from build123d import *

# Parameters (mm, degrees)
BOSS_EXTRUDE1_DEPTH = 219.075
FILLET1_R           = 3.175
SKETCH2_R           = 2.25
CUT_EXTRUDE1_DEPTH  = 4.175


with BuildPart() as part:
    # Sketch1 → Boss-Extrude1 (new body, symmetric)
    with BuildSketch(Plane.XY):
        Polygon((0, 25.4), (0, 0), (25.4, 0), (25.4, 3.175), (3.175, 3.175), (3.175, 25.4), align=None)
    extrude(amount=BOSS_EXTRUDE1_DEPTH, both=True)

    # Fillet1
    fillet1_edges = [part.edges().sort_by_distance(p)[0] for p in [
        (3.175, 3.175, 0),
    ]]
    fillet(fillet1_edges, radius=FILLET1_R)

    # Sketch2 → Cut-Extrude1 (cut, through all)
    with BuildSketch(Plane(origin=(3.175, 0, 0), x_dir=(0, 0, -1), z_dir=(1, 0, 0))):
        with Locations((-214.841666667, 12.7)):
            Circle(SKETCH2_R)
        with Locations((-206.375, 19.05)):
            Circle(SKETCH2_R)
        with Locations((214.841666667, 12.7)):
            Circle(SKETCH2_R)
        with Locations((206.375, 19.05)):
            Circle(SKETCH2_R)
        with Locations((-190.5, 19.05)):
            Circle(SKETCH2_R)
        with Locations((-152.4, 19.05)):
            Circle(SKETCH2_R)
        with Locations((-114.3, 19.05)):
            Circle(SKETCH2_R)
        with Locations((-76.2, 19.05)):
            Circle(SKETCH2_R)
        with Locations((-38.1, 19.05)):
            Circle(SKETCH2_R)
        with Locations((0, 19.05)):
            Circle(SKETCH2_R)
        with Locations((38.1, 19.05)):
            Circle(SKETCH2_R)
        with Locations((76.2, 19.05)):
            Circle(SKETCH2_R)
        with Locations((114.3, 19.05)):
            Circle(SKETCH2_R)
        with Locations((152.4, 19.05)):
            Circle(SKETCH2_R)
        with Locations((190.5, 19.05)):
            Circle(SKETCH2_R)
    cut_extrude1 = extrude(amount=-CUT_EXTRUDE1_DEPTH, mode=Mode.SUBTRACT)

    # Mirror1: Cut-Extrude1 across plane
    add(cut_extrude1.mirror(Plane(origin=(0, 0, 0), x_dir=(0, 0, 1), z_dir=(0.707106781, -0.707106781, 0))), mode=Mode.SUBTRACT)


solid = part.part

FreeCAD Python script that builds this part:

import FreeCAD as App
import Part
import Sketcher

V = App.Vector
Q = App.Units.Quantity


def edges_at(feature, points):
    """Names of the edges that pass closest to the given points."""
    edges = feature.Shape.Edges
    near = lambda p: min(range(len(edges)), key=lambda i: edges[i].distToShape(Part.Vertex(*p))[0])
    return sorted({f"Edge{near(p) + 1}" for p in points})

doc = App.newDocument("Part")
params = doc.addObject("Spreadsheet::Sheet", "Params")
for row, (alias, value) in enumerate([
    ("sketch1_width", "1 in"),
    ("sketch1_width2", "0.875 in"),
    ("pad1_length", "17.25 in"),
    ("fillet_radius", "0.125 in"),
], start=1):
    params.set(f"A{row}", alias)
    params.set(f"B{row}", "=" + value)
    params.setAlias(f"B{row}", alias)

body = doc.addObject("PartDesign::Body", "Body")

# Sketch on XY plane
sketch1 = body.newObject("Sketcher::SketchObject", "Sketch")
sketch1.AttachmentSupport = (doc.getObject("XY_Plane"), [""])
sketch1.MapMode = "FlatFace"
sketch1.addGeometry(Part.LineSegment(V(0, 25.4, 0), V(0, 0, 0)), False)
sketch1.addGeometry(Part.LineSegment(V(0, 0, 0), V(25.4, 0, 0)), False)
sketch1.addGeometry(Part.LineSegment(V(25.4, 0, 0), V(25.4, 3.2, 0)), False)
sketch1.addGeometry(Part.LineSegment(V(25.4, 3.2, 0), V(3.2, 3.2, 0)), False)
sketch1.addGeometry(Part.LineSegment(V(3.2, 3.2, 0), V(3.2, 25.4, 0)), False)
sketch1.addGeometry(Part.LineSegment(V(3.2, 25.4, 0), V(0, 25.4, 0)), False)
sketch1.addConstraint(Sketcher.Constraint("Coincident", 0, 2, 1, 1))
sketch1.addConstraint(Sketcher.Constraint("Coincident", 1, 2, 2, 1))
sketch1.addConstraint(Sketcher.Constraint("Coincident", 2, 2, 3, 1))
sketch1.addConstraint(Sketcher.Constraint("Coincident", 3, 2, 4, 1))
sketch1.addConstraint(Sketcher.Constraint("Coincident", 4, 2, 5, 1))
sketch1.addConstraint(Sketcher.Constraint("Coincident", 5, 2, 0, 1))
sketch1.addConstraint(Sketcher.Constraint("Vertical", 0))
sketch1.addConstraint(Sketcher.Constraint("Horizontal", 1))
sketch1.addConstraint(Sketcher.Constraint("Vertical", 2))
sketch1.addConstraint(Sketcher.Constraint("Horizontal", 3))
sketch1.addConstraint(Sketcher.Constraint("Vertical", 4))
sketch1.addConstraint(Sketcher.Constraint("Horizontal", 5))
sketch1.addConstraint(Sketcher.Constraint("Coincident", 0, 2, -1, 1))
sketch1.addConstraint(Sketcher.Constraint("Equal", 1, 0))
sketch1.addConstraint(Sketcher.Constraint("Equal", 5, 2))
sketch1.addConstraint(Sketcher.Constraint("DistanceX", 1, 1, 1, 2, Q("1 in")))
sketch1.addConstraint(Sketcher.Constraint("DistanceX", 3, 2, 3, 1, Q("0.875 in")))
sketch1.setExpression("Constraints[15]", "Params.sketch1_width")
sketch1.setExpression("Constraints[16]", "Params.sketch1_width2")
pad1 = body.newObject("PartDesign::Pad", "Pad")
pad1.Profile = sketch1
pad1.setExpression("Length", "Params.pad1_length")
pad1.Midplane = True
doc.recompute()

fillet = body.newObject("PartDesign::Fillet", "Fillet")
fillet.Base = (pad1, edges_at(pad1, [(3.175, 3.175, 0)]))
fillet.setExpression("Radius", "Params.fillet_radius")

# Sketch on YZ plane
sketch2 = body.newObject("Sketcher::SketchObject", "Sketch001")
sketch2.AttachmentSupport = (doc.getObject("YZ_Plane"), [""])
sketch2.MapMode = "FlatFace"
sketch2.AttachmentOffset = App.Placement(V(0, 0, 0.125 * 25.4), App.Rotation())
sketch2.addGeometry(Part.Circle(V(12.7, 214.8, 0), V(0, 0, 1), 2.2), False)
sketch2.addGeometry(Part.Circle(V(19.1, 206.4, 0), V(0, 0, 1), 2.2), False)
sketch2.addGeometry(Part.Circle(V(12.7, -214.8, 0), V(0, 0, 1), 2.2), False)
sketch2.addGeometry(Part.Circle(V(19.1, -206.4, 0), V(0, 0, 1), 2.2), False)
sketch2.addGeometry(Part.Circle(V(19.1, 190.5, 0), V(0, 0, 1), 2.2), False)
sketch2.addGeometry(Part.Circle(V(19.1, 152.4, 0), V(0, 0, 1), 2.2), False)
sketch2.addGeometry(Part.Circle(V(19.1, 114.3, 0), V(0, 0, 1), 2.2), False)
sketch2.addGeometry(Part.Circle(V(19.1, 76.2, 0), V(0, 0, 1), 2.2), False)
sketch2.addGeometry(Part.Circle(V(19.1, 38.1, 0), V(0, 0, 1), 2.2), False)
sketch2.addGeometry(Part.Circle(V(19.1, 0, 0), V(0, 0, 1), 2.2), False)
sketch2.addGeometry(Part.Circle(V(19.1, -38.1, 0), V(0, 0, 1), 2.2), False)
sketch2.addGeometry(Part.Circle(V(19.1, -76.2, 0), V(0, 0, 1), 2.2), False)
sketch2.addGeometry(Part.Circle(V(19.1, -114.3, 0), V(0, 0, 1), 2.2), False)
sketch2.addGeometry(Part.Circle(V(19.1, -152.4, 0), V(0, 0, 1), 2.2), False)
sketch2.addGeometry(Part.Circle(V(19.1, -190.5, 0), V(0, 0, 1), 2.2), False)
sketch2.addConstraint(Sketcher.Constraint("Equal", 0, 1))
sketch2.addConstraint(Sketcher.Constraint("Equal", 1, 2))
sketch2.addConstraint(Sketcher.Constraint("Equal", 2, 3))
sketch2.addConstraint(Sketcher.Constraint("Equal", 3, 4))
sketch2.addConstraint(Sketcher.Constraint("Equal", 4, 5))
sketch2.addConstraint(Sketcher.Constraint("Equal", 5, 6))
sketch2.addConstraint(Sketcher.Constraint("Equal", 6, 7))
sketch2.addConstraint(Sketcher.Constraint("Equal", 7, 8))
sketch2.addConstraint(Sketcher.Constraint("Equal", 8, 9))
sketch2.addConstraint(Sketcher.Constraint("Equal", 9, 10))
sketch2.addConstraint(Sketcher.Constraint("Equal", 10, 11))
sketch2.addConstraint(Sketcher.Constraint("Equal", 11, 12))
sketch2.addConstraint(Sketcher.Constraint("Equal", 12, 13))
sketch2.addConstraint(Sketcher.Constraint("Equal", 13, 14))
sketch2.addConstraint(Sketcher.Constraint("Symmetric", 0, 3, 2, 3, -1))
sketch2.addConstraint(Sketcher.Constraint("Symmetric", 1, 3, 3, 3, -1))
sketch2.addConstraint(Sketcher.Constraint("Symmetric", 8, 3, 10, 3, -1))
sketch2.addConstraint(Sketcher.Constraint("Symmetric", 7, 3, 11, 3, -1))
sketch2.addConstraint(Sketcher.Constraint("Symmetric", 6, 3, 12, 3, -1))
sketch2.addConstraint(Sketcher.Constraint("Symmetric", 5, 3, 13, 3, -1))
sketch2.addConstraint(Sketcher.Constraint("Symmetric", 4, 3, 14, 3, -1))
sketch2.addConstraint(Sketcher.Constraint("PointOnObject", 9, 3, -1))
sketch2.addConstraint(Sketcher.Constraint("Vertical", 3, 3, 4, 3))
sketch2.addConstraint(Sketcher.Constraint("Vertical", 4, 3, 5, 3))
sketch2.addConstraint(Sketcher.Constraint("Vertical", 5, 3, 6, 3))
sketch2.addConstraint(Sketcher.Constraint("Vertical", 6, 3, 7, 3))
sketch2.addConstraint(Sketcher.Constraint("Vertical", 7, 3, 8, 3))
sketch2.addConstraint(Sketcher.Constraint("Vertical", 8, 3, 9, 3))
sketch2.addConstraint(Sketcher.Constraint("DistanceY", -1, 1, 5, 3, Q("6 in")))
sketch2.addConstraint(Sketcher.Constraint("DistanceY", -1, 1, 7, 3, Q("3 in")))
sketch2.addConstraint(Sketcher.Constraint("DistanceY", 6, 3, 4, 3, Q("3 in")))
sketch2.addConstraint(Sketcher.Constraint("DistanceY", 8, 3, 6, 3, Q("3 in")))
sketch2.addConstraint(Sketcher.Constraint("DistanceY", 10, 3, 8, 3, Q("3 in")))
sketch2.addConstraint(Sketcher.Constraint("DistanceX", -1, 1, 0, 3, Q("0.5 in")))
sketch2.addConstraint(Sketcher.Constraint("Diameter", 0, 4.5))
sketch2.addConstraint(Sketcher.Constraint("DistanceX", -1, 1, 1, 3, Q("0.75 in")))
sketch2.addConstraint(Sketcher.Constraint("DistanceY", 3, 3, 1, 3, Q("16.25 in")))
sketch2.addConstraint(Sketcher.Constraint("DistanceY", -1, 1, 0, 3, 214.841667))
pocket1 = body.newObject("PartDesign::Pocket", "Pocket")
pocket1.Profile = sketch2
pocket1.Type = "ThroughAll"
doc.recompute()

datumplane = body.newObject("PartDesign::Plane", "DatumPlane")
datumplane.Placement = App.Placement(V(0, 0, 0), App.Rotation(V(-0.707106781, -0.707106781, 0), V(0, 0, -1), V(0.707106781, -0.707106781, 0), "ZXY"))
mirrored = body.newObject("PartDesign::Mirrored", "Mirrored")
mirrored.Originals = [pocket1]
mirrored.MirrorPlane = (datumplane, [""])
body.Tip = mirrored

doc.recompute()
